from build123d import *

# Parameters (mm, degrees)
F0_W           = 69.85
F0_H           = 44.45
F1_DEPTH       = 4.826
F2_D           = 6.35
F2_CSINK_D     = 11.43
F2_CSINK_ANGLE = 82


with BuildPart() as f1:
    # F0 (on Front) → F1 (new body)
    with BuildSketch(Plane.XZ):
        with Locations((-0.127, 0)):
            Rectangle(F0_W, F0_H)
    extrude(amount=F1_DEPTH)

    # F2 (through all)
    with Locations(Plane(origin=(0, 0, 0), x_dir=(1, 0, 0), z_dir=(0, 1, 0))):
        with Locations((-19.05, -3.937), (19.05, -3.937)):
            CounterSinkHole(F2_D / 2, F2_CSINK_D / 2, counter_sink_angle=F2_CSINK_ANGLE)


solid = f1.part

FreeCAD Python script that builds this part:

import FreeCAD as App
import Part
import Sketcher
Q = App.Units.Quantity


def add_polygon(sketch, points):
    """Adds a closed chain of lines whose ends are joined by coincident constraints."""
    first, n = sketch.GeometryCount, len(points)
    for a, b in zip(points, points[1:] + points[:1]):
        sketch.addGeometry(Part.LineSegment(App.Vector(*a, 0), App.Vector(*b, 0)), False)
    for i in range(n):
        sketch.addConstraint(Sketcher.Constraint("Coincident", first + i, 2, first + (i + 1) % n, 1))

doc = App.newDocument("Part")
body = doc.addObject("PartDesign::Body", "Body")

sketch1 = body.newObject("Sketcher::SketchObject", "Sketch")
sketch1.AttachmentSupport = (doc.getObject("XZ_Plane"), [""])
sketch1.MapMode = "FlatFace"
add_polygon(sketch1, [(-35.052, 22.225), (-35.052, -22.225), (34.798, -22.225), (34.798, 22.225)])
sketch1.addConstraint([
    Sketcher.Constraint("Vertical", 0),
    Sketcher.Constraint("Horizontal", 1),
    Sketcher.Constraint("Vertical", 2),
    Sketcher.Constraint("Horizontal", 3),
    Sketcher.Constraint("DistanceX", 1, 1, 1, 2, Q("2.75 in")),
    Sketcher.Constraint("DistanceY", 0, 2, 0, 1, Q("1.75 in")),
    Sketcher.Constraint("DistanceX", 0, 2, -1, 1, Q("1.38 in")),
    Sketcher.Constraint("DistanceY", 0, 2, -1, 1, Q("0.875 in")),
])
pad1 = body.newObject("PartDesign::Pad", "Pad")
pad1.Profile = sketch1
pad1.Length = Q("0.19 in")

sketch2 = body.newObject("Sketcher::SketchObject", "Sketch001")
sketch2.AttachmentSupport = (doc.getObject("XZ_Plane"), [""])
sketch2.MapMode = "FlatFace"
sketch2.addGeometry([
    Part.Circle(App.Vector(-19.05, 3.937, 0), App.Vector(0, 0, 1), 3.175),
    Part.Circle(App.Vector(19.05, 3.937, 0), App.Vector(0, 0, 1), 3.175),
], False)
sketch2.addConstraint([
    Sketcher.Constraint("Equal", 0, 1),
    Sketcher.Constraint("Symmetric", 0, 3, 1, 3, -2),
    Sketcher.Constraint("Diameter", 0, Q("0.25 in")),
    Sketcher.Constraint("DistanceX", 0, 3, 1, 3, Q("1.5 in")),
    Sketcher.Constraint("DistanceY", -1, 1, 0, 3, Q("0.155 in")),
])
doc.recompute()
hole = body.newObject("PartDesign::Hole", "Hole")
hole.Profile = sketch2
hole.ThreadType = "None"
hole.Diameter = Q("0.25 in")
hole.DepthType = "ThroughAll"
hole.HoleCutType = "Countersink"
hole.HoleCutDiameter = Q("0.45 in")
hole.HoleCutCountersinkAngle = 82
hole.Reversed = True

doc.recompute()
